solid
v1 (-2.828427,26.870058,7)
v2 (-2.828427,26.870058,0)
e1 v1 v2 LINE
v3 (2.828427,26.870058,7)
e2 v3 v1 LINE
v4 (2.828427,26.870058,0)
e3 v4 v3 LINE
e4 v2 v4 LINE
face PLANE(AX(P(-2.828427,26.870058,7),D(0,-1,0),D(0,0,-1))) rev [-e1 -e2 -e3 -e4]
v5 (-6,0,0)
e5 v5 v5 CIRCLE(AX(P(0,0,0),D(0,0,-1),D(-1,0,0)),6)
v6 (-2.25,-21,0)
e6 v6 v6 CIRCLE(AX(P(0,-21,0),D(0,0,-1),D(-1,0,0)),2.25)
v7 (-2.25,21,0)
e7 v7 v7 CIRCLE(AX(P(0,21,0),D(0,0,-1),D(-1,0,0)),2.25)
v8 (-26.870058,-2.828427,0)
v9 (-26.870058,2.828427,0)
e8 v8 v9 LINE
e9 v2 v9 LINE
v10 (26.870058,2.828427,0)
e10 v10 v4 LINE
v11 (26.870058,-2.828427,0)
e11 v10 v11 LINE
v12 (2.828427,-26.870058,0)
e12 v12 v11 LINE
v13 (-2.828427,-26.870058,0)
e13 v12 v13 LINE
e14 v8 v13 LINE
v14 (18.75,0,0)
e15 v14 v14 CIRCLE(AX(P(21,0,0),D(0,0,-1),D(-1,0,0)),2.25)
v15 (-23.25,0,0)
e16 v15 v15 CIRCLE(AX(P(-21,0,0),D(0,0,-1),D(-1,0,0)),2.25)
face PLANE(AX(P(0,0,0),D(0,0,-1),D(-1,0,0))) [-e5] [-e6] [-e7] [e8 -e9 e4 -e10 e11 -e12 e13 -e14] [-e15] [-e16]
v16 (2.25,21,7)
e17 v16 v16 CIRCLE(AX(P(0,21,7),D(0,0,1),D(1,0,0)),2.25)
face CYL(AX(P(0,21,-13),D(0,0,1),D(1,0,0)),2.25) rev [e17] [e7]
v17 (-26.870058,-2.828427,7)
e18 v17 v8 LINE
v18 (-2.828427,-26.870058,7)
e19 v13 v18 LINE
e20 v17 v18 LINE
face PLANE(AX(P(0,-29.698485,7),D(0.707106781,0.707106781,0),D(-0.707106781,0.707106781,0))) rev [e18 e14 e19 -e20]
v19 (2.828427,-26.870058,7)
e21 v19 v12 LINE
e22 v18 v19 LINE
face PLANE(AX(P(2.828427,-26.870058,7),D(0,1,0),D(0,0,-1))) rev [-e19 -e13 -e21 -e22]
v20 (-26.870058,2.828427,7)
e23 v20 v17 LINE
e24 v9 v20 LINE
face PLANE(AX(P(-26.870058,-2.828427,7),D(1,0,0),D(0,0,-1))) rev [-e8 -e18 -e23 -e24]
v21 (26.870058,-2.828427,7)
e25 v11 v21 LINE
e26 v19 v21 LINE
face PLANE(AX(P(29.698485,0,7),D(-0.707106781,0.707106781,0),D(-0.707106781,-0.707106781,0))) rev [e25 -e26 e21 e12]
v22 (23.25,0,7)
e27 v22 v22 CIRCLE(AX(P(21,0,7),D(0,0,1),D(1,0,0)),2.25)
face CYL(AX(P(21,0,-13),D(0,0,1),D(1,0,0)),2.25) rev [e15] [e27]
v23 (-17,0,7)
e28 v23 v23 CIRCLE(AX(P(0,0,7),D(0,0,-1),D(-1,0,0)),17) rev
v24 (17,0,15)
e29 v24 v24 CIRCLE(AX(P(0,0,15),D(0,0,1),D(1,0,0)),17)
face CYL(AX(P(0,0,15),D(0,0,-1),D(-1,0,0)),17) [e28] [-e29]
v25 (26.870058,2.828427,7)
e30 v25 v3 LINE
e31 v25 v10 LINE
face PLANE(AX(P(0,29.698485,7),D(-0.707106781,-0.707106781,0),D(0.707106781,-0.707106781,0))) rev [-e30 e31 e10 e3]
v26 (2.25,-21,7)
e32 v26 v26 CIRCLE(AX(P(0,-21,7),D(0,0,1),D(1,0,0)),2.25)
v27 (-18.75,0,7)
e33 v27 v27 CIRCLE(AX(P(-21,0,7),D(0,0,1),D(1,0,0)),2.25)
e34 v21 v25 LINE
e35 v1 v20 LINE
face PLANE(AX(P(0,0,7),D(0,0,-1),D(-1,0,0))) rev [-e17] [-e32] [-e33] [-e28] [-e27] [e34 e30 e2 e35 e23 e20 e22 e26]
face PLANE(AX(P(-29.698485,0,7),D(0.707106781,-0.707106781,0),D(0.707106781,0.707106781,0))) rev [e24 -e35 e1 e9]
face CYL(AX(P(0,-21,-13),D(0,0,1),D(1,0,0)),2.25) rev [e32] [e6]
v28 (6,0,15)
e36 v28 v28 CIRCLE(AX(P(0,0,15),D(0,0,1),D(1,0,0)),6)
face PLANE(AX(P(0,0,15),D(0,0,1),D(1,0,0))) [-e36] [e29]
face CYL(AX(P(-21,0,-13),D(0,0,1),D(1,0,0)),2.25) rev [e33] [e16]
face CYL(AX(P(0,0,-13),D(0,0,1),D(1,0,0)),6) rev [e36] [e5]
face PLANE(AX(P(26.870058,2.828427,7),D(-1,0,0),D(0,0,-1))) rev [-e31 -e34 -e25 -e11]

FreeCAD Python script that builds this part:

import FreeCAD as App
import Part
import Sketcher
from FreeCAD import Vector
Q = App.Units.Quantity


def edges_at(feature, points):
    """Names of the edges that pass closest to the given points."""
    edges = feature.Shape.Edges
    near = lambda p: min(range(len(edges)), key=lambda i: edges[i].distToShape(Part.Vertex(*p))[0])
    return sorted({f"Edge{near(p) + 1}" for p in points})

doc = App.newDocument("Part")
body = doc.addObject("PartDesign::Body", "Body")

# Sketch on XY plane
sketch1 = doc.addObject("Sketcher::SketchObject", "Sketch")
body.addObject(sketch1)
sketch1.AttachmentSupport = (doc.XY_Plane, [""])
sketch1.MapMode = "FlatFace"
sketch1.addGeometry(Part.LineSegment(Vector(0, 29.698485, 0), Vector(-29.698485, 0, 0)), False)
sketch1.addGeometry(Part.LineSegment(Vector(-29.698485, 0, 0), Vector(0, -29.698485, 0)), False)
sketch1.addGeometry(Part.LineSegment(Vector(0, -29.698485, 0), Vector(29.698485, 0, 0)), False)
sketch1.addGeometry(Part.LineSegment(Vector(29.698485, 0, 0), Vector(0, 29.698485, 0)), False)
sketch1.addConstraint(Sketcher.Constraint("Coincident", 0, 2, 1, 1))
sketch1.addConstraint(Sketcher.Constraint("Coincident", 1, 2, 2, 1))
sketch1.addConstraint(Sketcher.Constraint("Coincident", 2, 2, 3, 1))
sketch1.addConstraint(Sketcher.Constraint("Coincident", 3, 2, 0, 1))
sketch1.addConstraint(Sketcher.Constraint("Symmetric", 0, 2, 2, 2, -1, 1))
sketch1.addConstraint(Sketcher.Constraint("Symmetric", 1, 2, 3, 2, -1, 1))
sketch1.addConstraint(Sketcher.Constraint("PointOnObject", 0, 2, -1))
sketch1.addConstraint(Sketcher.Constraint("PointOnObject", 1, 2, -2))
sketch1.addConstraint(Sketcher.Constraint("Perpendicular", 0, 1))
sketch1.addConstraint(Sketcher.Constraint("Distance", 0, Q("42 mm")))
pad1 = doc.addObject("PartDesign::Pad", "Pad")
body.addObject(pad1)
pad1.Profile = sketch1
pad1.Length = 7

# Sketch on XY plane
sketch2 = doc.addObject("Sketcher::SketchObject", "Sketch001")
body.addObject(sketch2)
sketch2.AttachmentSupport = (doc.XY_Plane, [""])
sketch2.MapMode = "FlatFace"
sketch2.AttachmentOffset = App.Placement(Vector(0, 0, 7), App.Rotation())
sketch2.addGeometry(Part.Circle(Vector(0, 21, 0), Vector(0, 0, 1), 2.25), False)
sketch2.addGeometry(Part.Circle(Vector(21, 0, 0), Vector(0, 0, 1), 2.25), False)
sketch2.addGeometry(Part.Circle(Vector(0, -21, 0), Vector(0, 0, 1), 2.25), False)
sketch2.addGeometry(Part.Circle(Vector(-21, 0, 0), Vector(0, 0, 1), 2.25), False)
sketch2.addConstraint(Sketcher.Constraint("Equal", 0, 1))
sketch2.addConstraint(Sketcher.Constraint("Equal", 1, 2))
sketch2.addConstraint(Sketcher.Constraint("Equal", 2, 3))
sketch2.addConstraint(Sketcher.Constraint("Symmetric", 0, 3, 2, 3, -1, 1))
sketch2.addConstraint(Sketcher.Constraint("Symmetric", 1, 3, 3, 3, -1, 1))
sketch2.addConstraint(Sketcher.Constraint("PointOnObject", 0, 3, -2))
sketch2.addConstraint(Sketcher.Constraint("PointOnObject", 1, 3, -1))
sketch2.addConstraint(Sketcher.Constraint("Diameter", 0, Q("4.5 mm")))
sketch2.addConstraint(Sketcher.Constraint("DistanceY", -1, 1, 0, 3, Q("21 mm")))
sketch2.addConstraint(Sketcher.Constraint("DistanceX", -1, 1, 1, 3, Q("21 mm")))
pocket1 = doc.addObject("PartDesign::Pocket", "Pocket")
body.addObject(pocket1)
pocket1.Profile = sketch2
pocket1.Length = 20

# Sketch on XY plane
sketch3 = doc.addObject("Sketcher::SketchObject", "Sketch002")
body.addObject(sketch3)
sketch3.AttachmentSupport = (doc.XY_Plane, [""])
sketch3.MapMode = "FlatFace"
sketch3.AttachmentOffset = App.Placement(Vector(0, 0, 7), App.Rotation())
sketch3.addGeometry(Part.Circle(Vector(0, 0, 0), Vector(0, 0, 1), 6), False)
sketch3.addConstraint(Sketcher.Constraint("Coincident", 0, 3, -1, 1))
sketch3.addConstraint(Sketcher.Constraint("Diameter", 0, Q("12 mm")))
pocket2 = doc.addObject("PartDesign::Pocket", "Pocket001")
body.addObject(pocket2)
pocket2.Profile = sketch3
pocket2.Length = 20

# Sketch on XY plane
sketch4 = doc.addObject("Sketcher::SketchObject", "Sketch003")
body.addObject(sketch4)
sketch4.AttachmentSupport = (doc.XY_Plane, [""])
sketch4.MapMode = "FlatFace"
sketch4.AttachmentOffset = App.Placement(Vector(0, 0, 15), App.Rotation())
sketch4.addGeometry(Part.Circle(Vector(0, 0, 0), Vector(0, 0, 1), 17), False)
sketch4.addGeometry(Part.Circle(Vector(0, 0, 0), Vector(0, 0, 1), 6), False)
sketch4.addConstraint(Sketcher.Constraint("Coincident", 0, 3, -1, 1))
sketch4.addConstraint(Sketcher.Constraint("Coincident", 1, 3, -1, 1))
sketch4.addConstraint(Sketcher.Constraint("Diameter", 0, Q("34 mm")))
sketch4.addConstraint(Sketcher.Constraint("Diameter", 1, Q("12 mm")))
pad2 = doc.addObject("PartDesign::Pad", "Pad001")
body.addObject(pad2)
pad2.Profile = sketch4
pad2.Length = 8
pad2.Reversed = True
doc.recompute()

chamfer = doc.addObject("PartDesign::Chamfer", "Chamfer")
body.addObject(chamfer)
chamfer.Base = (pad2, edges_at(pad2, [(0, 29.698, 3.5)]))
chamfer.Size = 4
doc.recompute()

chamfer2 = doc.addObject("PartDesign::Chamfer", "Chamfer001")
body.addObject(chamfer2)
chamfer2.Base = (chamfer, edges_at(chamfer, [(29.698, 0, 3.5)]))
chamfer2.Size = 4
doc.recompute()

chamfer3 = doc.addObject("PartDesign::Chamfer", "Chamfer002")
body.addObject(chamfer3)
chamfer3.Base = (chamfer2, edges_at(chamfer2, [(-29.698, 0, 3.5)]))
chamfer3.Size = 4
doc.recompute()

chamfer4 = doc.addObject("PartDesign::Chamfer", "Chamfer003")
body.addObject(chamfer4)
chamfer4.Base = (chamfer3, edges_at(chamfer3, [(0, -29.698, 3.5)]))
chamfer4.Size = 4

doc.recompute()
